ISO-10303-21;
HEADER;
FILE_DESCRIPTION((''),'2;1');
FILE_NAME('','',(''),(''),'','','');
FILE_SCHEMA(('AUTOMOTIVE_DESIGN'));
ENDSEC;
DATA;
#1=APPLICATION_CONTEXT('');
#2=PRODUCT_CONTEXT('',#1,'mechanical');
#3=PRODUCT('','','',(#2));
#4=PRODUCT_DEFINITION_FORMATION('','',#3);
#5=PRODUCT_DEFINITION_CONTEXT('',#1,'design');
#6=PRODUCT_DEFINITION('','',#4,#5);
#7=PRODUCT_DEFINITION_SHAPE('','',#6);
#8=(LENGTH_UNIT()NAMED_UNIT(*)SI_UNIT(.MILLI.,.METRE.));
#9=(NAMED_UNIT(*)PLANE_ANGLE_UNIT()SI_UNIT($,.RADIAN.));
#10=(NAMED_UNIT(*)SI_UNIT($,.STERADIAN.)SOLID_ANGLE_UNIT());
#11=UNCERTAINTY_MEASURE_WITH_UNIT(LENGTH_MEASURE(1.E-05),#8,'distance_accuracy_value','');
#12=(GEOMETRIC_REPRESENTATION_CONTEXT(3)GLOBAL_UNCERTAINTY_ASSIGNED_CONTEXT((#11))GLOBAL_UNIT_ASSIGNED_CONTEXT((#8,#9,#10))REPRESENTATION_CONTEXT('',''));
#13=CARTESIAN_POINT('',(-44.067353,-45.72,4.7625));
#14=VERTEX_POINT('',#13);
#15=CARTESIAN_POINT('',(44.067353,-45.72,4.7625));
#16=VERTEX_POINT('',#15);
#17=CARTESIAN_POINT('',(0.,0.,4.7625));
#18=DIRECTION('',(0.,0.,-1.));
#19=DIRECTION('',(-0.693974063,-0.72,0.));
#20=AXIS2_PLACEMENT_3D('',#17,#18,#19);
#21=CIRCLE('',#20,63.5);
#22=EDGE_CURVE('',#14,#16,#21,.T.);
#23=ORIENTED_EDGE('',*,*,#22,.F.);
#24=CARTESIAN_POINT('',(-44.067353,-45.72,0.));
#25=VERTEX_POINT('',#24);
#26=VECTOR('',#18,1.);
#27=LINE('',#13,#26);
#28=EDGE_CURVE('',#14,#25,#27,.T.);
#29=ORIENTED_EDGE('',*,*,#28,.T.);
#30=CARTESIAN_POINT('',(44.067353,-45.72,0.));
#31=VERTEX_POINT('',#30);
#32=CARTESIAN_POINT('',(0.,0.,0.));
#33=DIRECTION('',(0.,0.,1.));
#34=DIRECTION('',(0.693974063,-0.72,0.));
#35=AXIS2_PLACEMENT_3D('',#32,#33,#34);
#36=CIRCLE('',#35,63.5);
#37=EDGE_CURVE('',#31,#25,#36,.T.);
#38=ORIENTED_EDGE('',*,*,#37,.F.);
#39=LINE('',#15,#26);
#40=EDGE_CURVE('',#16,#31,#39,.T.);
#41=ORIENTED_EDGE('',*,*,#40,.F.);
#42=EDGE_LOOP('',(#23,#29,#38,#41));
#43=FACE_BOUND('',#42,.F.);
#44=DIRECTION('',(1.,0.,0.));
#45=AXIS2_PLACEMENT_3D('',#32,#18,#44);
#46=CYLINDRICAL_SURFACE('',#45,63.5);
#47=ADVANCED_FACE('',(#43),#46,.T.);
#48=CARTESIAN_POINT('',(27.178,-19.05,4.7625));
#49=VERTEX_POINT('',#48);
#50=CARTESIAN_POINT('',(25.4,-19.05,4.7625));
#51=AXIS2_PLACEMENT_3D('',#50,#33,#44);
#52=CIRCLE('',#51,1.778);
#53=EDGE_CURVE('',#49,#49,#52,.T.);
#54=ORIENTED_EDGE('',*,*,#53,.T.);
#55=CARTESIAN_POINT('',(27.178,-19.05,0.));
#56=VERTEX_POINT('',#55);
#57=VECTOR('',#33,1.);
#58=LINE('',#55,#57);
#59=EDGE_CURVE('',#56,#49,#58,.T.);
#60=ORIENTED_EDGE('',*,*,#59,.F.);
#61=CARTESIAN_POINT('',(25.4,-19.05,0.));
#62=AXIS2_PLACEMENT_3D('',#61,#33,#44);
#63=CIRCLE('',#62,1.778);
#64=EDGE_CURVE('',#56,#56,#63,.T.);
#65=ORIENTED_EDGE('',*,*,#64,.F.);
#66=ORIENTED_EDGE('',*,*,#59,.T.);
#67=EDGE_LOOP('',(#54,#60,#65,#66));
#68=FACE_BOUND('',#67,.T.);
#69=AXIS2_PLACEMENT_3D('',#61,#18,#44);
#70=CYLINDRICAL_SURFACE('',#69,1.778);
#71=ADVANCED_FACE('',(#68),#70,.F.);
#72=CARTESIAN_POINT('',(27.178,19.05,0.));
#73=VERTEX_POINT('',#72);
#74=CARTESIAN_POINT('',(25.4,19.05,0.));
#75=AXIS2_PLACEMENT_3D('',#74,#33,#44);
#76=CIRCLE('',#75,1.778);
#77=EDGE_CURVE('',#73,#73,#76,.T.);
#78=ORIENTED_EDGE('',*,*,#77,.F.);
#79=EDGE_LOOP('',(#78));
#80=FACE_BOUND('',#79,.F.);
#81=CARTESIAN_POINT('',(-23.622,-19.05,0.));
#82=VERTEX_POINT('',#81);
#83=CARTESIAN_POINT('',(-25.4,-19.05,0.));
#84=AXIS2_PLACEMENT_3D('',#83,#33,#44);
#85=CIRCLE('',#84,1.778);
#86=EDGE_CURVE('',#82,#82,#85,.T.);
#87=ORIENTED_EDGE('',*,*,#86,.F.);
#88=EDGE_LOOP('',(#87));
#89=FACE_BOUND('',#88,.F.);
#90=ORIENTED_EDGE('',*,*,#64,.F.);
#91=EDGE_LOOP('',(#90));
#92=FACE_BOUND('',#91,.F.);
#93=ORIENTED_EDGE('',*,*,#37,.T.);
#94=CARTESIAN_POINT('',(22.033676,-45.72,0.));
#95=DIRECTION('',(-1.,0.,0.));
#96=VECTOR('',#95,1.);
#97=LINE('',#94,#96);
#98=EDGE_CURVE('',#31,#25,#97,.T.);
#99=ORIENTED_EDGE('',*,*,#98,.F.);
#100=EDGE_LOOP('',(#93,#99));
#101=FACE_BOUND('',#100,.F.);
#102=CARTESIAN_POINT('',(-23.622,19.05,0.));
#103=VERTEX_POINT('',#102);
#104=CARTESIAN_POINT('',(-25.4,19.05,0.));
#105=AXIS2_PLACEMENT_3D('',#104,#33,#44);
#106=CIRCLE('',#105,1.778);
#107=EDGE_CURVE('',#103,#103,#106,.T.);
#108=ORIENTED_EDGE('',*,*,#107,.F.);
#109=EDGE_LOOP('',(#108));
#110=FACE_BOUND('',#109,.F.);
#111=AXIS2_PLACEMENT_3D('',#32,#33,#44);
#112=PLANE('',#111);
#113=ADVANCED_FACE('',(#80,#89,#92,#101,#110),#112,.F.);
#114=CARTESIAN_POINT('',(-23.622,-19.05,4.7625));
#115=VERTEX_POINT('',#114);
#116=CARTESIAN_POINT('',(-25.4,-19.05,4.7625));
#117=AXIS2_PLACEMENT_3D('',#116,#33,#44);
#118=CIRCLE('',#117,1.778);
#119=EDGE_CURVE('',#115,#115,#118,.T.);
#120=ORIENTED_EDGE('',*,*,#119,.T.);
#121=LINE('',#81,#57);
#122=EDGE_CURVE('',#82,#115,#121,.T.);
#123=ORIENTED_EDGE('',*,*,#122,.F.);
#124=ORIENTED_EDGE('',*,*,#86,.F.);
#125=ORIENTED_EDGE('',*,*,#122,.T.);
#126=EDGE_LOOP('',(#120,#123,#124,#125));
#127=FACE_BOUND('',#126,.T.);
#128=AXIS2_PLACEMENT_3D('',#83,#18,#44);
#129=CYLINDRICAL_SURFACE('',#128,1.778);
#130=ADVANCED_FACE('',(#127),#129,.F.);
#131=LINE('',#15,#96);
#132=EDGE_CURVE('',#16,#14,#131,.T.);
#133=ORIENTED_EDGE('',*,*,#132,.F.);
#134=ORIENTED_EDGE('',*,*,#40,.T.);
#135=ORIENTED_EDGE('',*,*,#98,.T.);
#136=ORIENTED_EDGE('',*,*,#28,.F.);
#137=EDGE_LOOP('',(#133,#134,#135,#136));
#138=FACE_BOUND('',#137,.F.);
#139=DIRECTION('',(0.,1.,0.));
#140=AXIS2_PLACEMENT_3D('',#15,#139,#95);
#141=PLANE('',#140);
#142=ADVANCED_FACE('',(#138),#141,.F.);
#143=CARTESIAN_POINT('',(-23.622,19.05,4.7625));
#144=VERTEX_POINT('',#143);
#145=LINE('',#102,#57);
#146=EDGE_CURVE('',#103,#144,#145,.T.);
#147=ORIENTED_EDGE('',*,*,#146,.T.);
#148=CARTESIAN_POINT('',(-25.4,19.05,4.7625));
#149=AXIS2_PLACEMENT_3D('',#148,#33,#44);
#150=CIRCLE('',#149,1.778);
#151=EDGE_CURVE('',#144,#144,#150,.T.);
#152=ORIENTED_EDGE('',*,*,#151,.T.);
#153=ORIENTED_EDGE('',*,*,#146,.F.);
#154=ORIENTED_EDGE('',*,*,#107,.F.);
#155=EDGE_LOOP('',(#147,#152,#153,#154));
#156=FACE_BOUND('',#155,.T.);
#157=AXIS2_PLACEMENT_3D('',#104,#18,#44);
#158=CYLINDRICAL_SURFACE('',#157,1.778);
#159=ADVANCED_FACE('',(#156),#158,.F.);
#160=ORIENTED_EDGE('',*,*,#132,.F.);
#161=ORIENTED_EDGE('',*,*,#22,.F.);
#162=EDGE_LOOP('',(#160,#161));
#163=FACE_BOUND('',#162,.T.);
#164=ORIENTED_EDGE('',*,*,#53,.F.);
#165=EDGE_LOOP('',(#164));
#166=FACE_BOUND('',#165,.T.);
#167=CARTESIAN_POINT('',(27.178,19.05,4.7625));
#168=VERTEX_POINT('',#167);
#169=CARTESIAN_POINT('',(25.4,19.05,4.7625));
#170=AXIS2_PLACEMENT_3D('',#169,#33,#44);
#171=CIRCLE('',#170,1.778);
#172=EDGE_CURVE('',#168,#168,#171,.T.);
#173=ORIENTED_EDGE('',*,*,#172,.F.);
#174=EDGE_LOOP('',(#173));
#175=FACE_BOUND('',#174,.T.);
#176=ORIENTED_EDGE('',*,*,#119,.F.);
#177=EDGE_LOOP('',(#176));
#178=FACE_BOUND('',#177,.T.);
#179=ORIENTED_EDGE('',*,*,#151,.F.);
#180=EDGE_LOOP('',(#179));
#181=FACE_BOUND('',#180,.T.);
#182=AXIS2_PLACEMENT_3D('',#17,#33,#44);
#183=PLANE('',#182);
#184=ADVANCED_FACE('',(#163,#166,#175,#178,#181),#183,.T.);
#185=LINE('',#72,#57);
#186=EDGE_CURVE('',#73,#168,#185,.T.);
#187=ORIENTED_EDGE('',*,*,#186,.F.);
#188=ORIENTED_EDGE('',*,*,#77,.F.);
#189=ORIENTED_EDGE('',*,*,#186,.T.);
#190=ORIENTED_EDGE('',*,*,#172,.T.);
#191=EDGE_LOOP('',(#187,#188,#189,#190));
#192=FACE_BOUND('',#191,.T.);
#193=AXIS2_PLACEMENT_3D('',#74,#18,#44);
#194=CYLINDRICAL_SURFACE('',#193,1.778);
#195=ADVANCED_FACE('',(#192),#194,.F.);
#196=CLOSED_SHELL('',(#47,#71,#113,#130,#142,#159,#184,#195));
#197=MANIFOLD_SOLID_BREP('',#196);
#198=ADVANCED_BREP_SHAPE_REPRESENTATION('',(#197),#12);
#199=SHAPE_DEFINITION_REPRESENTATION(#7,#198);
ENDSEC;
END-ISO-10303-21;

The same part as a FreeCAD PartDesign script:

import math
import FreeCAD as App
import Part
import Sketcher

V = App.Vector
Q = App.Units.Quantity

doc = App.newDocument("Part")
body = doc.addObject("PartDesign::Body", "Body")

sketch1 = body.newObject("Sketcher::SketchObject", "Sketch")
sketch1.AttachmentSupport = (doc.getObject("XY_Plane"), [""])
sketch1.MapMode = "FlatFace"
sketch1.addGeometry([
    Part.Circle(V(0, 0, 0), V(0, 0, 1), 63.5),
    Part.Circle(V(-25.4, -19.05, 0), V(0, 0, 1), 1.778),
    Part.Circle(V(25.4, -19.05, 0), V(0, 0, 1), 1.778),
    Part.Circle(V(-25.4, 19.05, 0), V(0, 0, 1), 1.778),
    Part.Circle(V(25.4, 19.05, 0), V(0, 0, 1), 1.778),
], False)
sketch1.addConstraint([
    Sketcher.Constraint("Coincident", 0, 3, -1, 1),
    Sketcher.Constraint("Equal", 1, 2),
    Sketcher.Constraint("Equal", 2, 3),
    Sketcher.Constraint("Equal", 3, 4),
    Sketcher.Constraint("Symmetric", 2, 3, 3, 3, -1, 1),
    Sketcher.Constraint("Symmetric", 1, 3, 4, 3, -1, 1),
    Sketcher.Constraint("Symmetric", 1, 3, 2, 3, -2),
    Sketcher.Constraint("Diameter", 0, Q("5 in")),
    Sketcher.Constraint("Diameter", 1, Q("0.14 in")),
    Sketcher.Constraint("DistanceX", 1, 3, -1, 1, Q("1 in")),
    Sketcher.Constraint("DistanceY", 1, 3, 3, 3, Q("1.5 in")),
])
pad1 = body.newObject("PartDesign::Pad", "Pad")
pad1.Profile = sketch1
pad1.Length = Q("0.1875 in")

sketch2 = body.newObject("Sketcher::SketchObject", "Sketch001")
sketch2.AttachmentSupport = (doc.getObject("XY_Plane"), [""])
sketch2.MapMode = "FlatFace"
sketch2.AttachmentOffset = App.Placement(V(0, 0, 0.1875 * 25.4), App.Rotation())
sketch2.addGeometry([
    Part.LineSegment(V(44.067353, -45.72, 0), V(-44.067353, -45.72, 0)),
    Part.ArcOfCircle(Part.Circle(V(0, 0, 0), V(0, 0, 1), 63.5), math.radians(-133.94552), math.radians(-46.05448)),
], False)
sketch2.addConstraint([
    Sketcher.Constraint("Coincident", 0, 1, 1, 2),
    Sketcher.Constraint("Coincident", 1, 1, 0, 2),
    Sketcher.Constraint("Horizontal", 0),
    Sketcher.Constraint("Coincident", 1, 3, -1, 1),
    Sketcher.Constraint("Radius", 1, Q("2.5 in")),
    Sketcher.Constraint("DistanceY", 0, 1, -1, 1, Q("1.8 in")),
])
pocket1 = body.newObject("PartDesign::Pocket", "Pocket")
pocket1.Profile = sketch2
pocket1.Length = Q("1 in")

doc.recompute()
